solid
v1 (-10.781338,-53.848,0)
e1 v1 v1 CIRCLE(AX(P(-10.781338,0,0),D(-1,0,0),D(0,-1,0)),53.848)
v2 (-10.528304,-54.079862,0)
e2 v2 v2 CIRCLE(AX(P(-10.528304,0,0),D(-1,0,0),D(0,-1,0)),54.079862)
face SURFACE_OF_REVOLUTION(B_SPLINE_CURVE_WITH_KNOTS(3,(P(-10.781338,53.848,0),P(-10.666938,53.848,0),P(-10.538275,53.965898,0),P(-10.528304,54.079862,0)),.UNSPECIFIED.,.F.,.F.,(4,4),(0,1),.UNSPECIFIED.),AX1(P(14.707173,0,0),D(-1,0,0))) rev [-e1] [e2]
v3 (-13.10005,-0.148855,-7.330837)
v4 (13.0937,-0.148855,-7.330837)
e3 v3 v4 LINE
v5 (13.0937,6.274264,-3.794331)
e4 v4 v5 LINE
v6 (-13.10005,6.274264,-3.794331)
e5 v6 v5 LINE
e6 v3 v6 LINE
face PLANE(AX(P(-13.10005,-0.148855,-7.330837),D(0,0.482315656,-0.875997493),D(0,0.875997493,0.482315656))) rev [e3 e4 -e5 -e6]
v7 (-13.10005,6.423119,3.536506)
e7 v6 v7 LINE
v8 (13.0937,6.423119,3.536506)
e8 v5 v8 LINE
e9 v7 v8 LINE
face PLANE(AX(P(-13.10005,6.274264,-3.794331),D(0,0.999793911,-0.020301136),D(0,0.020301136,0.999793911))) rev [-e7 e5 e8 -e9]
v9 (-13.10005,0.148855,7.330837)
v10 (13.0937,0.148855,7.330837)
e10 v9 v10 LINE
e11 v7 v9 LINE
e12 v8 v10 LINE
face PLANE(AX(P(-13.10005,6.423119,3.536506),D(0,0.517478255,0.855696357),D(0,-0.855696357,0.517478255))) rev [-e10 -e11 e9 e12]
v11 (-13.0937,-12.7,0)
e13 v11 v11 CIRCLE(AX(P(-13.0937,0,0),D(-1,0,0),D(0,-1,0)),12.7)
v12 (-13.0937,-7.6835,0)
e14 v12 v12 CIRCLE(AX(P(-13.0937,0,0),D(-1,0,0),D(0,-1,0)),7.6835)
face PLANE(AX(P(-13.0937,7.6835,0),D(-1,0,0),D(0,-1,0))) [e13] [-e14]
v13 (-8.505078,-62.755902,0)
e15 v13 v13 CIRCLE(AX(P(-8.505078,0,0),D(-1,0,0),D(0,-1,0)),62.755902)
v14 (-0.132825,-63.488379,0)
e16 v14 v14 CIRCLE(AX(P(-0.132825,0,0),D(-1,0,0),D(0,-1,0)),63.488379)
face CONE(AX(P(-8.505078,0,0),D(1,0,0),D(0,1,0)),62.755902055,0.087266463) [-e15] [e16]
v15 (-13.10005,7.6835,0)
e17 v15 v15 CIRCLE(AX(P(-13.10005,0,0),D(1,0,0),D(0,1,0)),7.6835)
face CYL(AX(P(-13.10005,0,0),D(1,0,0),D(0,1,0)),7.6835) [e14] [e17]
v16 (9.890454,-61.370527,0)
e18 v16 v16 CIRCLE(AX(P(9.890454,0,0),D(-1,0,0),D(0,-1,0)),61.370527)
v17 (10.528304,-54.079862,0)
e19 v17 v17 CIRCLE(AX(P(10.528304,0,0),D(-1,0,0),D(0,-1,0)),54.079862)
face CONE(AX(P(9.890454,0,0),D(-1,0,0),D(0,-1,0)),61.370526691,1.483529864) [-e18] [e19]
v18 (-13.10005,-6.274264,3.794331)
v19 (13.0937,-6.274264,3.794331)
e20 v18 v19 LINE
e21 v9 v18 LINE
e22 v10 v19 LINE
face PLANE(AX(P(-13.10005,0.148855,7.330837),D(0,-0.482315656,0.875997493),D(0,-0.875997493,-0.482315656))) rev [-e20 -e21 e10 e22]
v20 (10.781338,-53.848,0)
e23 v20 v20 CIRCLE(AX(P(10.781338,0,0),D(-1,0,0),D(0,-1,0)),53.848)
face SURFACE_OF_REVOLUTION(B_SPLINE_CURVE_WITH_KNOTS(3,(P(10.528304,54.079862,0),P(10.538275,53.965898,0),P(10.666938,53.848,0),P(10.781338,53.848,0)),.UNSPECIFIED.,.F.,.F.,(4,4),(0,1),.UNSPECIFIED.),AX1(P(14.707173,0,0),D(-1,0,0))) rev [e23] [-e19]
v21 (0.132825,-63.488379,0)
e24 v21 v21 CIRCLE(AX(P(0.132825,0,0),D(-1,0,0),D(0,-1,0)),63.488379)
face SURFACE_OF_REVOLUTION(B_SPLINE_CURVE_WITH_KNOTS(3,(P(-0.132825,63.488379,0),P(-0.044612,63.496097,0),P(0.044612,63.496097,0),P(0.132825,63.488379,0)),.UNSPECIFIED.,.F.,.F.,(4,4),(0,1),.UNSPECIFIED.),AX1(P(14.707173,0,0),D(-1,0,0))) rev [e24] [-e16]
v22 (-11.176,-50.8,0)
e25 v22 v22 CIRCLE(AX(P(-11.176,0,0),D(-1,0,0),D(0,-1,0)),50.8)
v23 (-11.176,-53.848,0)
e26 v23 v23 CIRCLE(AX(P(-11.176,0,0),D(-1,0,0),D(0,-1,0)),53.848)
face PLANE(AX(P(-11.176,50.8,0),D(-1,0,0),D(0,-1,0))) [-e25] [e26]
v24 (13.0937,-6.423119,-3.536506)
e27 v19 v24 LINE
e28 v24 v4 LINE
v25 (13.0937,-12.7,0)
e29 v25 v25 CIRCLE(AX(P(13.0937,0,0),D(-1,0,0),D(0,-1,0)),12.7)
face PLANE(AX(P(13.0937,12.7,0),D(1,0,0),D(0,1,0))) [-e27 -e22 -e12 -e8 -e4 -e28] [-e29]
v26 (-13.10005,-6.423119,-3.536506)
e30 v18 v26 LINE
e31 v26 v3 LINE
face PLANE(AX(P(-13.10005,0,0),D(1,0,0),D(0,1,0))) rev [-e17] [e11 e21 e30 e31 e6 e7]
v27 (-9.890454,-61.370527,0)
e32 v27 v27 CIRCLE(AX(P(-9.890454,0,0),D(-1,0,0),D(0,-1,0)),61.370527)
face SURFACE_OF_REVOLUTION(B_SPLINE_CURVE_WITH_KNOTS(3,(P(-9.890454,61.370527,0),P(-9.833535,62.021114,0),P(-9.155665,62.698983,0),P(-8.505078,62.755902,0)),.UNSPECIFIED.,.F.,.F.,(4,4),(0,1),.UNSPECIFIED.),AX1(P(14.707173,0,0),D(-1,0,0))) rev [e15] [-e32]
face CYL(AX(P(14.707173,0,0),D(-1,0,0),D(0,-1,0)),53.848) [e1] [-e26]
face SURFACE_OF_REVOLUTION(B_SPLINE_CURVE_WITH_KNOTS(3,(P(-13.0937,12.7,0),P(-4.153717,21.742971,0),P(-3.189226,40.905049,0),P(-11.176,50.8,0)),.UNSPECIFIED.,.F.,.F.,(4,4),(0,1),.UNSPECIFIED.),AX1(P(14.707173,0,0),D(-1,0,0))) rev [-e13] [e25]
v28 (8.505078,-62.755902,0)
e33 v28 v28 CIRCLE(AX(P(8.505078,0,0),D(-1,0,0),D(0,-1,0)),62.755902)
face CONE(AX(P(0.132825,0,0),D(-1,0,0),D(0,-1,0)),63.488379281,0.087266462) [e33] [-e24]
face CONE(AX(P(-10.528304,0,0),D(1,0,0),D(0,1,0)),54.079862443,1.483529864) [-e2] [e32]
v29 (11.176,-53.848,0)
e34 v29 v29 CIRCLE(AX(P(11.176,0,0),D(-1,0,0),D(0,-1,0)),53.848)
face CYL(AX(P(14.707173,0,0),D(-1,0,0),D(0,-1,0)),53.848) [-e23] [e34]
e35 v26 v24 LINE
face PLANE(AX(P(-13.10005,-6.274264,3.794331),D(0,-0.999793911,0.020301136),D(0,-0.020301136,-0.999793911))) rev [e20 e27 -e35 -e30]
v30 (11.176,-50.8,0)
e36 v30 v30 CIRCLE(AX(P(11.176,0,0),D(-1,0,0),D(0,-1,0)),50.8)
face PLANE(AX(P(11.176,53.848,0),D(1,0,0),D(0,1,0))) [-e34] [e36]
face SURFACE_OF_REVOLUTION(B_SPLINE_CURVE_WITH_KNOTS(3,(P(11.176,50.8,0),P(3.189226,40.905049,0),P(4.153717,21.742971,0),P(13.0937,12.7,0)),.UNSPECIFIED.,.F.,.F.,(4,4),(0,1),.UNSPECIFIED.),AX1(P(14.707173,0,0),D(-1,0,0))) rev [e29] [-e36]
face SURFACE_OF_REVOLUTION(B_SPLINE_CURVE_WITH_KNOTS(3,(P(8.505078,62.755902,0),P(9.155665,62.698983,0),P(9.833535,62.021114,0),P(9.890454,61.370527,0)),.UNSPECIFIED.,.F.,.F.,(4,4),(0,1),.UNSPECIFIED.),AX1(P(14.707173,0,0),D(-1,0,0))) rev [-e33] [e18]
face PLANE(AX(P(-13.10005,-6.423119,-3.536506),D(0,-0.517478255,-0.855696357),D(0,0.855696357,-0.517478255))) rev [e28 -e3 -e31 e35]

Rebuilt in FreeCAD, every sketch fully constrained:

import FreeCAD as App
import Part
import Sketcher

V = App.Vector
Q = App.Units.Quantity

doc = App.newDocument("Part")
params = doc.addObject("Spreadsheet::Sheet", "Params")
for row, (alias, value) in enumerate([
    ("revolution_angle", "360 deg"),
    ("sketch2_diameter", "0.605 in"),
    ("pad1_length", "1.03125 in"),
], start=1):
    params.set(f"A{row}", alias)
    params.set(f"B{row}", "=" + value)
    params.setAlias(f"B{row}", alias)

body = doc.addObject("PartDesign::Body", "Body")

# Sketch on XY plane
sketch1 = doc.addObject("Sketcher::SketchObject", "Sketch")
body.addObject(sketch1)
sketch1.AttachmentSupport = (doc.XY_Plane, [""])
sketch1.MapMode = "FlatFace"
sketch1.addGeometry([
    Part.LineSegment(V(0.132825, 63.488379, 0), V(8.505078, 62.755902, 0)),  # 0
    Part.BSplineCurve([V(9.890454, 61.370527, 0), V(9.833535, 62.021114, 0), V(9.155665, 62.698983, 0), V(8.505078, 62.755902, 0)], [4, 4], [0, 1], False, 3, [1, 1, 1, 1], False),  # 1
    Part.LineSegment(V(9.890454, 61.370527, 0), V(10.528304, 54.079862, 0)),  # 2
    Part.BSplineCurve([V(10.528304, 54.079862, 0), V(10.538275, 53.965898, 0), V(10.666938, 53.848, 0), V(10.781338, 53.848, 0)], [4, 4], [0, 1], False, 3, [1, 1, 1, 1], False),  # 3
    Part.LineSegment(V(10.781338, 53.848, 0), V(11.176, 53.848, 0)),  # 4
    Part.LineSegment(V(11.176, 53.848, 0), V(11.176, 50.8, 0)),  # 5
    Part.BSplineCurve([V(11.176, 50.8, 0), V(3.189226, 40.905049, 0), V(4.153717, 21.742971, 0), V(13.0937, 12.7, 0)], [4, 4], [0, 1], False, 3, [1, 1, 1, 1], False),  # 6
    Part.LineSegment(V(13.0937, 12.7, 0), V(13.0937, 7.6835, 0)),  # 7
    Part.LineSegment(V(13.0937, 7.6835, 0), V(-13.0937, 7.6835, 0)),  # 8
    Part.LineSegment(V(-13.0937, 7.6835, 0), V(-13.0937, 12.7, 0)),  # 9
    Part.BSplineCurve([V(-13.0937, 12.7, 0), V(-4.153717, 21.742971, 0), V(-3.189226, 40.905049, 0), V(-11.176, 50.8, 0)], [4, 4], [0, 1], False, 3, [1, 1, 1, 1], False),  # 10
    Part.LineSegment(V(-11.176, 50.8, 0), V(-11.176, 53.848, 0)),  # 11
    Part.LineSegment(V(-11.176, 53.848, 0), V(-10.781338, 53.848, 0)),  # 12
    Part.BSplineCurve([V(-10.781338, 53.848, 0), V(-10.666938, 53.848, 0), V(-10.538275, 53.965898, 0), V(-10.528304, 54.079862, 0)], [4, 4], [0, 1], False, 3, [1, 1, 1, 1], False),  # 13
    Part.LineSegment(V(-10.528304, 54.079862, 0), V(-9.890454, 61.370527, 0)),  # 14
    Part.BSplineCurve([V(-8.505078, 62.755902, 0), V(-9.155665, 62.698983, 0), V(-9.833535, 62.021114, 0), V(-9.890454, 61.370527, 0)], [4, 4], [0, 1], False, 3, [1, 1, 1, 1], False),  # 15
    Part.LineSegment(V(-8.505078, 62.755902, 0), V(-0.132825, 63.488379, 0)),  # 16
    Part.BSplineCurve([V(0.132825, 63.488379, 0), V(0.044612, 63.496097, 0), V(-0.044612, 63.496097, 0), V(-0.132825, 63.488379, 0)], [4, 4], [0, 1], False, 3, [1, 1, 1, 1], False),  # 17
], False)
sketch1.addConstraint([
    Sketcher.Constraint("Block", 1),
    Sketcher.Constraint("Block", 3),
    Sketcher.Constraint("Block", 6),
    Sketcher.Constraint("Block", 10),
    Sketcher.Constraint("Block", 13),
    Sketcher.Constraint("Block", 15),
    Sketcher.Constraint("Block", 17),
    Sketcher.Constraint("Coincident", 0, 2, 1, 2),
    Sketcher.Constraint("Coincident", 1, 1, 2, 1),
    Sketcher.Constraint("Coincident", 2, 2, 3, 1),
    Sketcher.Constraint("Coincident", 3, 2, 4, 1),
    Sketcher.Constraint("Coincident", 4, 2, 5, 1),
    Sketcher.Constraint("Coincident", 5, 2, 6, 1),
    Sketcher.Constraint("Coincident", 6, 2, 7, 1),
    Sketcher.Constraint("Coincident", 7, 2, 8, 1),
    Sketcher.Constraint("Coincident", 8, 2, 9, 1),
    Sketcher.Constraint("Coincident", 9, 2, 10, 1),
    Sketcher.Constraint("Coincident", 10, 2, 11, 1),
    Sketcher.Constraint("Coincident", 11, 2, 12, 1),
    Sketcher.Constraint("Coincident", 12, 2, 13, 1),
    Sketcher.Constraint("Coincident", 13, 2, 14, 1),
    Sketcher.Constraint("Coincident", 14, 2, 15, 2),
    Sketcher.Constraint("Coincident", 15, 1, 16, 1),
    Sketcher.Constraint("Coincident", 16, 2, 17, 2),
    Sketcher.Constraint("Coincident", 17, 1, 0, 1),
    Sketcher.Constraint("Horizontal", 4),
    Sketcher.Constraint("Vertical", 5),
    Sketcher.Constraint("Vertical", 7),
    Sketcher.Constraint("Horizontal", 8),
    Sketcher.Constraint("Vertical", 9),
    Sketcher.Constraint("Vertical", 11),
    Sketcher.Constraint("Horizontal", 12),
    Sketcher.Constraint("DistanceY", 7, 2, 7, 1, Q("0.1975 in")),
])
revolution = doc.addObject("PartDesign::Revolution", "Revolution")
body.addObject(revolution)
revolution.Profile = sketch1
revolution.ReferenceAxis = (sketch1, ["H_Axis"])
revolution.setExpression("Angle", "Params.revolution_angle")

# Sketch on YZ plane
sketch2 = doc.addObject("Sketcher::SketchObject", "Sketch001")
body.addObject(sketch2)
sketch2.AttachmentSupport = (doc.YZ_Plane, [""])
sketch2.MapMode = "FlatFace"
sketch2.AttachmentOffset = App.Placement(V(0, 0, -13.10005), App.Rotation())
sketch2.addGeometry([
    Part.Circle(V(0, 0, 0), V(0, 0, 1), 8),  # 0
    Part.LineSegment(V(6, -4, 0), V(0, -7, 0)),  # 1
    Part.LineSegment(V(0, -7, 0), V(-6, -4, 0)),  # 2
    Part.LineSegment(V(-6, -4, 0), V(-6, 4, 0)),  # 3
    Part.LineSegment(V(-6, 4, 0), V(0, 7, 0)),  # 4
    Part.LineSegment(V(0, 7, 0), V(6, 4, 0)),  # 5
    Part.LineSegment(V(6, 4, 0), V(6, -4, 0)),  # 6
], False)
sketch2.addConstraint([
    Sketcher.Constraint("Coincident", 1, 2, 2, 1),
    Sketcher.Constraint("Coincident", 2, 2, 3, 1),
    Sketcher.Constraint("Coincident", 3, 2, 4, 1),
    Sketcher.Constraint("Coincident", 4, 2, 5, 1),
    Sketcher.Constraint("Coincident", 5, 2, 6, 1),
    Sketcher.Constraint("Coincident", 6, 2, 1, 1),
    Sketcher.Constraint("Coincident", 0, 3, -1, 1),
    Sketcher.Constraint("Symmetric", 1, 2, 4, 2, -1, 1),
    Sketcher.Constraint("Symmetric", 2, 2, 5, 2, -1, 1),
    Sketcher.Constraint("Symmetric", 3, 2, 6, 2, -1, 1),
    Sketcher.Constraint("Equal", 1, 2),
    Sketcher.Constraint("Equal", 2, 3),
    Sketcher.Constraint("Diameter", 0, Q("0.605 in")),
    Sketcher.Constraint("Distance", 1, Q("7.332348 mm")),
    Sketcher.Constraint("DistanceX", 2, 2, -1, 1, Q("6.423119 mm")),
    Sketcher.Constraint("DistanceY", -1, 1, 3, 2, Q("3.794331 mm")),
    Sketcher.Constraint("DistanceY", 1, 2, 2, 2, Q("3.794331 mm")),
])
sketch2.setExpression("Constraints[12]", "Params.sketch2_diameter")
pad1 = doc.addObject("PartDesign::Pad", "Pad")
body.addObject(pad1)
pad1.Profile = sketch2
pad1.setExpression("Length", "Params.pad1_length")

doc.recompute()
